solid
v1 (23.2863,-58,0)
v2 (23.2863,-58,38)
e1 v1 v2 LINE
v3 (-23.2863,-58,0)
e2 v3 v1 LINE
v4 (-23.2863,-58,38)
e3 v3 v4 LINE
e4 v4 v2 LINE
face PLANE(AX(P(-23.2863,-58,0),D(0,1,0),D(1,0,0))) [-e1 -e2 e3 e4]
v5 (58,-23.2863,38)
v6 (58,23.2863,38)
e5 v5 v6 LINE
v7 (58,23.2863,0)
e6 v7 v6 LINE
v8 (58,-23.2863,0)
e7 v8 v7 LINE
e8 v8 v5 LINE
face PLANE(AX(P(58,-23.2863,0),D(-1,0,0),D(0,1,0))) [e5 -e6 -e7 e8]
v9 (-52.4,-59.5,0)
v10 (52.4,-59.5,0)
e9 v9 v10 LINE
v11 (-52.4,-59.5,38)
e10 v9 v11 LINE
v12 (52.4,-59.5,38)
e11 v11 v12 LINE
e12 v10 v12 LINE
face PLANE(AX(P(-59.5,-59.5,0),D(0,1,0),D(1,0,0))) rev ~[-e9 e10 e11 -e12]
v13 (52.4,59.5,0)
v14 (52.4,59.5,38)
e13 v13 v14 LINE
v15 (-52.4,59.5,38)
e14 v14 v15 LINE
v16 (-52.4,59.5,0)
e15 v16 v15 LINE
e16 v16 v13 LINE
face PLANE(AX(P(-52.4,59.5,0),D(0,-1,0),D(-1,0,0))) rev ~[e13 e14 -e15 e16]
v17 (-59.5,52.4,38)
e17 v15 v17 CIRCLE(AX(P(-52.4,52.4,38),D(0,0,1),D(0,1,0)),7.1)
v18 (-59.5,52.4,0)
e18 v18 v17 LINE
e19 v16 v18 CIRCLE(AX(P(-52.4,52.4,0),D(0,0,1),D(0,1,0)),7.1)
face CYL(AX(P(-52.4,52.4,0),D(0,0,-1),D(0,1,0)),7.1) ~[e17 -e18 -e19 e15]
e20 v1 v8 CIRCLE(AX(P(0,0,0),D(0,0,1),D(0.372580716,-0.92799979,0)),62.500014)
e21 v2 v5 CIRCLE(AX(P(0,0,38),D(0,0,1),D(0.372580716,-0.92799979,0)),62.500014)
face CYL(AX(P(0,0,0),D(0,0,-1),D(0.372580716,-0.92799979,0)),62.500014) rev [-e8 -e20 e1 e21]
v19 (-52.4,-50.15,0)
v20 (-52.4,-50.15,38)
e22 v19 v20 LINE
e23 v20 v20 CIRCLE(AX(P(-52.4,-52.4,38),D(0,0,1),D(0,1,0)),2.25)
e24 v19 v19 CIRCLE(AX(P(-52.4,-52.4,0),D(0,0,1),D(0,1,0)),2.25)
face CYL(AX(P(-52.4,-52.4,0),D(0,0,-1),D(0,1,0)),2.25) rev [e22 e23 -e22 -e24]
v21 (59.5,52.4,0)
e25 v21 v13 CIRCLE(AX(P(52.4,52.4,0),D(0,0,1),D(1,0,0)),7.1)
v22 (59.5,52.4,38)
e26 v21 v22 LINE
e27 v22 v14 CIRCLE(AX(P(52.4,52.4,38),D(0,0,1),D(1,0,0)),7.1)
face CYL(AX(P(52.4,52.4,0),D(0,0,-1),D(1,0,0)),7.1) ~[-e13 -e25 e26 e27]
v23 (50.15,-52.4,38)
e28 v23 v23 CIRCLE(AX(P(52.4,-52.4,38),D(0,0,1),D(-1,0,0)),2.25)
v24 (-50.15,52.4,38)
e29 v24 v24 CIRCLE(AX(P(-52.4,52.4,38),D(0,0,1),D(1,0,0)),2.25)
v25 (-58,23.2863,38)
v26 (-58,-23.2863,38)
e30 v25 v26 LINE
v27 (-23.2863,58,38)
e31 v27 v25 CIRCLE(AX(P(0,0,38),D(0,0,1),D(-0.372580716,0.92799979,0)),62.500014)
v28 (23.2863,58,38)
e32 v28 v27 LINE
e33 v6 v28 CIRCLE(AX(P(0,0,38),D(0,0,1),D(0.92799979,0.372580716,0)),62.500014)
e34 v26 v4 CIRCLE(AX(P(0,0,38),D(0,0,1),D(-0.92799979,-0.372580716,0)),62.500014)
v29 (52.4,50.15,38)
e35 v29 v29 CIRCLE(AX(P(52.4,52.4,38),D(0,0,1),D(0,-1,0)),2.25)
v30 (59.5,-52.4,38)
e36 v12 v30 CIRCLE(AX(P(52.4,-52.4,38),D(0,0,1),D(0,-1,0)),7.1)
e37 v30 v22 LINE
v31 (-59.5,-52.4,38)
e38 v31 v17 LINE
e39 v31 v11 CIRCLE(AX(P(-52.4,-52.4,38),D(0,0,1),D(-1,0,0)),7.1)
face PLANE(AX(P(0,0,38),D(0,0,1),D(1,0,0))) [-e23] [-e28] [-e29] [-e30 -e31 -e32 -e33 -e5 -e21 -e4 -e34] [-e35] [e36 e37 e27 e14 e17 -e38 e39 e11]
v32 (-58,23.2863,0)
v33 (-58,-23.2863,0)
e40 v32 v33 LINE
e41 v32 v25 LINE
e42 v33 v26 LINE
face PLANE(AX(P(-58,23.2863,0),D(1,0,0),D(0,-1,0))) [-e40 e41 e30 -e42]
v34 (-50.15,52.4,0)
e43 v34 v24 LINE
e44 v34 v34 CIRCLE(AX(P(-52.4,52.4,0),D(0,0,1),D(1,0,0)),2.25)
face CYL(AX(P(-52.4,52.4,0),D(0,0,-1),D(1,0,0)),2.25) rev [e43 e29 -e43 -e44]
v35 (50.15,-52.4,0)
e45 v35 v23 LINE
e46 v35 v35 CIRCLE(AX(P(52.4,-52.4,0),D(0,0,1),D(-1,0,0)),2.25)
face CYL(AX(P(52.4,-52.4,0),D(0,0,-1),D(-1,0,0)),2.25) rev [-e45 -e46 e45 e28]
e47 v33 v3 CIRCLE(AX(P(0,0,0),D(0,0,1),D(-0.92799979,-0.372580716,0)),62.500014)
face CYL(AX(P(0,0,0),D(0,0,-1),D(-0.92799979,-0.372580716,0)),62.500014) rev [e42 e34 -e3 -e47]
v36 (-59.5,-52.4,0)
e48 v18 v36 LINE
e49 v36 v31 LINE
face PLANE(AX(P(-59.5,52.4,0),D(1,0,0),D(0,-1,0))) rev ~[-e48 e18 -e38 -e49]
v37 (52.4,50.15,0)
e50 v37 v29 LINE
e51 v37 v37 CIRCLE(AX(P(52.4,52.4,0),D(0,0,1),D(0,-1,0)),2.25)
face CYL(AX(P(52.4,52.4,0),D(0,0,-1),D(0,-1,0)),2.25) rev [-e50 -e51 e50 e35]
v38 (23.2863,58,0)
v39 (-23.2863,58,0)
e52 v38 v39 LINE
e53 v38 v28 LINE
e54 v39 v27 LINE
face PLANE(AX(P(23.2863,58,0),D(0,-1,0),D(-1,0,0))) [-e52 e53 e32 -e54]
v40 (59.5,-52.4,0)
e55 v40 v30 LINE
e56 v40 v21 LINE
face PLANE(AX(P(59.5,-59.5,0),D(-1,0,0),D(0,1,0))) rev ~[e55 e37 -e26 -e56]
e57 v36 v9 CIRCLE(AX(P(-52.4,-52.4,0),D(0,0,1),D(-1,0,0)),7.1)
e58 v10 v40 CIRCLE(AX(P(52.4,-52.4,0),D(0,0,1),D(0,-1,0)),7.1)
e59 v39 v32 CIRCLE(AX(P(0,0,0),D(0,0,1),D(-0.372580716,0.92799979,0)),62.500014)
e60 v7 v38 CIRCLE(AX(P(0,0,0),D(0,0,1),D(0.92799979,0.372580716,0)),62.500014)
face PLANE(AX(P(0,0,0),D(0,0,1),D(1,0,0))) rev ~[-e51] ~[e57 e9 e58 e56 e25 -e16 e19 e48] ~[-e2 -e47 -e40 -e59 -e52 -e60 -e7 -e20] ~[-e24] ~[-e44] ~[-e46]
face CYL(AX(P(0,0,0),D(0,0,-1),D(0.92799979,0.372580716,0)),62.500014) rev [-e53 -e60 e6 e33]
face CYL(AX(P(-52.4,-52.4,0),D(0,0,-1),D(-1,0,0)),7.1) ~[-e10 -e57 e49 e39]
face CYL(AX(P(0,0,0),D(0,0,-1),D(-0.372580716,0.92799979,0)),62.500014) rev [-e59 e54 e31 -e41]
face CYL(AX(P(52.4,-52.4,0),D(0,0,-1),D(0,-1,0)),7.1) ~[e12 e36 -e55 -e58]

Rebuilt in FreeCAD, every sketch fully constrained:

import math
import FreeCAD as App
import Part
import Sketcher

V = App.Vector

doc = App.newDocument("Part")
body = doc.addObject("PartDesign::Body", "Body")

sketch1 = body.newObject("Sketcher::SketchObject", "Sketch")
sketch1.AttachmentSupport = (doc.getObject("XY_Plane"), [""])
sketch1.MapMode = "FlatFace"
sketch1.addGeometry([
    Part.LineSegment(V(-60, -60, 0), V(60, -60, 0)),
    Part.LineSegment(V(60, -60, 0), V(60, 60, 0)),
    Part.LineSegment(V(60, 60, 0), V(-60, 60, 0)),
    Part.LineSegment(V(-60, 60, 0), V(-60, -60, 0)),
    Part.LineSegment(V(23, -58, 0), V(-23, -58, 0)),
    Part.ArcOfCircle(Part.Circle(V(0, 0, 0), V(0, 0, 1), 63), math.radians(-158), math.radians(-112)),
    Part.LineSegment(V(-58, -23, 0), V(-58, 23, 0)),
    Part.ArcOfCircle(Part.Circle(V(0, 0, 0), V(0, 0, 1), 63), math.radians(112), math.radians(158)),
    Part.LineSegment(V(-23, 58, 0), V(23, 58, 0)),
    Part.ArcOfCircle(Part.Circle(V(0, 0, 0), V(0, 0, 1), 63), math.radians(22), math.radians(68)),
    Part.LineSegment(V(58, 23, 0), V(58, -23, 0)),
    Part.ArcOfCircle(Part.Circle(V(0, 0, 0), V(0, 0, 1), 63), math.radians(-68), math.radians(-22)),
], False)
sketch1.addConstraint([
    Sketcher.Constraint("Coincident", 0, 2, 1, 1),
    Sketcher.Constraint("Coincident", 1, 2, 2, 1),
    Sketcher.Constraint("Coincident", 2, 2, 3, 1),
    Sketcher.Constraint("Coincident", 3, 2, 0, 1),
    Sketcher.Constraint("Coincident", 4, 2, 5, 2),
    Sketcher.Constraint("Coincident", 5, 1, 6, 1),
    Sketcher.Constraint("Coincident", 6, 2, 7, 2),
    Sketcher.Constraint("Coincident", 7, 1, 8, 1),
    Sketcher.Constraint("Coincident", 8, 2, 9, 2),
    Sketcher.Constraint("Coincident", 9, 1, 10, 1),
    Sketcher.Constraint("Coincident", 10, 2, 11, 2),
    Sketcher.Constraint("Coincident", 11, 1, 4, 1),
    Sketcher.Constraint("Horizontal", 0),
    Sketcher.Constraint("Vertical", 1),
    Sketcher.Constraint("Horizontal", 2),
    Sketcher.Constraint("Vertical", 3),
    Sketcher.Constraint("Horizontal", 4),
    Sketcher.Constraint("Vertical", 6),
    Sketcher.Constraint("Horizontal", 8),
    Sketcher.Constraint("Vertical", 10),
    Sketcher.Constraint("Coincident", 5, 3, -1, 1),
    Sketcher.Constraint("Coincident", 7, 3, -1, 1),
    Sketcher.Constraint("Coincident", 9, 3, -1, 1),
    Sketcher.Constraint("Coincident", 11, 3, -1, 1),
    Sketcher.Constraint("Equal", 5, 7),
    Sketcher.Constraint("Equal", 7, 9),
    Sketcher.Constraint("Equal", 9, 11),
    Sketcher.Constraint("Symmetric", 0, 2, 2, 2, -1, 1),
    Sketcher.Constraint("Horizontal", 6, 2, 9, 1),
    Sketcher.Constraint("Vertical", 4, 2, 7, 1),
    Sketcher.Constraint("Equal", 2, 1),
    Sketcher.Constraint("Equal", 8, 6),
    Sketcher.Constraint("Radius", 5, 62.5),
    Sketcher.Constraint("DistanceX", 0, 1, 0, 2, 119.0),
    Sketcher.Constraint("DistanceY", 3, 2, 4, 2, 1.5),
])
pad1 = body.newObject("PartDesign::Pad", "Pad")
pad1.Profile = sketch1
pad1.Length = 38

sketch2 = body.newObject("Sketcher::SketchObject", "Sketch001")
sketch2.AttachmentSupport = (doc.getObject("XY_Plane"), [""])
sketch2.MapMode = "FlatFace"
sketch2.addGeometry([
    Part.LineSegment(V(-59.5, 59.5, 0), V(-59.5, 52.4, 0)),
    Part.ArcOfCircle(Part.Circle(V(-52.4, 52.4, 0), V(0, 0, 1), 7.1), math.radians(90), math.radians(180)),
    Part.LineSegment(V(-52.4, 59.5, 0), V(-59.5, 59.5, 0)),
    Part.Circle(V(-52.4, 52.4, 0), V(0, 0, 1), 2.2),
], False)
sketch2.addConstraint([
    Sketcher.Constraint("Tangent", 0, 2, 1, 2),
    Sketcher.Constraint("Tangent", 1, 1, 2, 1),
    Sketcher.Constraint("Coincident", 2, 2, 0, 1),
    Sketcher.Constraint("Vertical", 0),
    Sketcher.Constraint("Horizontal", 2),
    Sketcher.Constraint("Coincident", 3, 3, 1, 3),
    Sketcher.Constraint("Diameter", 3, 4.5),
    Sketcher.Constraint("Radius", 1, 7.1),
    Sketcher.Constraint("DistanceX", 1, 3, -1, 1, 52.4),
    Sketcher.Constraint("DistanceY", -1, 1, 1, 3, 52.4),
])
pocket1 = body.newObject("PartDesign::Pocket", "Pocket")
pocket1.Profile = sketch2
pocket1.Length = 38
pocket1.Reversed = True
doc.recompute()

polarpattern = body.newObject("PartDesign::PolarPattern", "PolarPattern")
polarpattern.Originals = [pocket1]
polarpattern.Axis = (doc.getObject("Z_Axis"), [""])
polarpattern.Angle = 360
polarpattern.Occurrences = 4
body.Tip = polarpattern

doc.recompute()
